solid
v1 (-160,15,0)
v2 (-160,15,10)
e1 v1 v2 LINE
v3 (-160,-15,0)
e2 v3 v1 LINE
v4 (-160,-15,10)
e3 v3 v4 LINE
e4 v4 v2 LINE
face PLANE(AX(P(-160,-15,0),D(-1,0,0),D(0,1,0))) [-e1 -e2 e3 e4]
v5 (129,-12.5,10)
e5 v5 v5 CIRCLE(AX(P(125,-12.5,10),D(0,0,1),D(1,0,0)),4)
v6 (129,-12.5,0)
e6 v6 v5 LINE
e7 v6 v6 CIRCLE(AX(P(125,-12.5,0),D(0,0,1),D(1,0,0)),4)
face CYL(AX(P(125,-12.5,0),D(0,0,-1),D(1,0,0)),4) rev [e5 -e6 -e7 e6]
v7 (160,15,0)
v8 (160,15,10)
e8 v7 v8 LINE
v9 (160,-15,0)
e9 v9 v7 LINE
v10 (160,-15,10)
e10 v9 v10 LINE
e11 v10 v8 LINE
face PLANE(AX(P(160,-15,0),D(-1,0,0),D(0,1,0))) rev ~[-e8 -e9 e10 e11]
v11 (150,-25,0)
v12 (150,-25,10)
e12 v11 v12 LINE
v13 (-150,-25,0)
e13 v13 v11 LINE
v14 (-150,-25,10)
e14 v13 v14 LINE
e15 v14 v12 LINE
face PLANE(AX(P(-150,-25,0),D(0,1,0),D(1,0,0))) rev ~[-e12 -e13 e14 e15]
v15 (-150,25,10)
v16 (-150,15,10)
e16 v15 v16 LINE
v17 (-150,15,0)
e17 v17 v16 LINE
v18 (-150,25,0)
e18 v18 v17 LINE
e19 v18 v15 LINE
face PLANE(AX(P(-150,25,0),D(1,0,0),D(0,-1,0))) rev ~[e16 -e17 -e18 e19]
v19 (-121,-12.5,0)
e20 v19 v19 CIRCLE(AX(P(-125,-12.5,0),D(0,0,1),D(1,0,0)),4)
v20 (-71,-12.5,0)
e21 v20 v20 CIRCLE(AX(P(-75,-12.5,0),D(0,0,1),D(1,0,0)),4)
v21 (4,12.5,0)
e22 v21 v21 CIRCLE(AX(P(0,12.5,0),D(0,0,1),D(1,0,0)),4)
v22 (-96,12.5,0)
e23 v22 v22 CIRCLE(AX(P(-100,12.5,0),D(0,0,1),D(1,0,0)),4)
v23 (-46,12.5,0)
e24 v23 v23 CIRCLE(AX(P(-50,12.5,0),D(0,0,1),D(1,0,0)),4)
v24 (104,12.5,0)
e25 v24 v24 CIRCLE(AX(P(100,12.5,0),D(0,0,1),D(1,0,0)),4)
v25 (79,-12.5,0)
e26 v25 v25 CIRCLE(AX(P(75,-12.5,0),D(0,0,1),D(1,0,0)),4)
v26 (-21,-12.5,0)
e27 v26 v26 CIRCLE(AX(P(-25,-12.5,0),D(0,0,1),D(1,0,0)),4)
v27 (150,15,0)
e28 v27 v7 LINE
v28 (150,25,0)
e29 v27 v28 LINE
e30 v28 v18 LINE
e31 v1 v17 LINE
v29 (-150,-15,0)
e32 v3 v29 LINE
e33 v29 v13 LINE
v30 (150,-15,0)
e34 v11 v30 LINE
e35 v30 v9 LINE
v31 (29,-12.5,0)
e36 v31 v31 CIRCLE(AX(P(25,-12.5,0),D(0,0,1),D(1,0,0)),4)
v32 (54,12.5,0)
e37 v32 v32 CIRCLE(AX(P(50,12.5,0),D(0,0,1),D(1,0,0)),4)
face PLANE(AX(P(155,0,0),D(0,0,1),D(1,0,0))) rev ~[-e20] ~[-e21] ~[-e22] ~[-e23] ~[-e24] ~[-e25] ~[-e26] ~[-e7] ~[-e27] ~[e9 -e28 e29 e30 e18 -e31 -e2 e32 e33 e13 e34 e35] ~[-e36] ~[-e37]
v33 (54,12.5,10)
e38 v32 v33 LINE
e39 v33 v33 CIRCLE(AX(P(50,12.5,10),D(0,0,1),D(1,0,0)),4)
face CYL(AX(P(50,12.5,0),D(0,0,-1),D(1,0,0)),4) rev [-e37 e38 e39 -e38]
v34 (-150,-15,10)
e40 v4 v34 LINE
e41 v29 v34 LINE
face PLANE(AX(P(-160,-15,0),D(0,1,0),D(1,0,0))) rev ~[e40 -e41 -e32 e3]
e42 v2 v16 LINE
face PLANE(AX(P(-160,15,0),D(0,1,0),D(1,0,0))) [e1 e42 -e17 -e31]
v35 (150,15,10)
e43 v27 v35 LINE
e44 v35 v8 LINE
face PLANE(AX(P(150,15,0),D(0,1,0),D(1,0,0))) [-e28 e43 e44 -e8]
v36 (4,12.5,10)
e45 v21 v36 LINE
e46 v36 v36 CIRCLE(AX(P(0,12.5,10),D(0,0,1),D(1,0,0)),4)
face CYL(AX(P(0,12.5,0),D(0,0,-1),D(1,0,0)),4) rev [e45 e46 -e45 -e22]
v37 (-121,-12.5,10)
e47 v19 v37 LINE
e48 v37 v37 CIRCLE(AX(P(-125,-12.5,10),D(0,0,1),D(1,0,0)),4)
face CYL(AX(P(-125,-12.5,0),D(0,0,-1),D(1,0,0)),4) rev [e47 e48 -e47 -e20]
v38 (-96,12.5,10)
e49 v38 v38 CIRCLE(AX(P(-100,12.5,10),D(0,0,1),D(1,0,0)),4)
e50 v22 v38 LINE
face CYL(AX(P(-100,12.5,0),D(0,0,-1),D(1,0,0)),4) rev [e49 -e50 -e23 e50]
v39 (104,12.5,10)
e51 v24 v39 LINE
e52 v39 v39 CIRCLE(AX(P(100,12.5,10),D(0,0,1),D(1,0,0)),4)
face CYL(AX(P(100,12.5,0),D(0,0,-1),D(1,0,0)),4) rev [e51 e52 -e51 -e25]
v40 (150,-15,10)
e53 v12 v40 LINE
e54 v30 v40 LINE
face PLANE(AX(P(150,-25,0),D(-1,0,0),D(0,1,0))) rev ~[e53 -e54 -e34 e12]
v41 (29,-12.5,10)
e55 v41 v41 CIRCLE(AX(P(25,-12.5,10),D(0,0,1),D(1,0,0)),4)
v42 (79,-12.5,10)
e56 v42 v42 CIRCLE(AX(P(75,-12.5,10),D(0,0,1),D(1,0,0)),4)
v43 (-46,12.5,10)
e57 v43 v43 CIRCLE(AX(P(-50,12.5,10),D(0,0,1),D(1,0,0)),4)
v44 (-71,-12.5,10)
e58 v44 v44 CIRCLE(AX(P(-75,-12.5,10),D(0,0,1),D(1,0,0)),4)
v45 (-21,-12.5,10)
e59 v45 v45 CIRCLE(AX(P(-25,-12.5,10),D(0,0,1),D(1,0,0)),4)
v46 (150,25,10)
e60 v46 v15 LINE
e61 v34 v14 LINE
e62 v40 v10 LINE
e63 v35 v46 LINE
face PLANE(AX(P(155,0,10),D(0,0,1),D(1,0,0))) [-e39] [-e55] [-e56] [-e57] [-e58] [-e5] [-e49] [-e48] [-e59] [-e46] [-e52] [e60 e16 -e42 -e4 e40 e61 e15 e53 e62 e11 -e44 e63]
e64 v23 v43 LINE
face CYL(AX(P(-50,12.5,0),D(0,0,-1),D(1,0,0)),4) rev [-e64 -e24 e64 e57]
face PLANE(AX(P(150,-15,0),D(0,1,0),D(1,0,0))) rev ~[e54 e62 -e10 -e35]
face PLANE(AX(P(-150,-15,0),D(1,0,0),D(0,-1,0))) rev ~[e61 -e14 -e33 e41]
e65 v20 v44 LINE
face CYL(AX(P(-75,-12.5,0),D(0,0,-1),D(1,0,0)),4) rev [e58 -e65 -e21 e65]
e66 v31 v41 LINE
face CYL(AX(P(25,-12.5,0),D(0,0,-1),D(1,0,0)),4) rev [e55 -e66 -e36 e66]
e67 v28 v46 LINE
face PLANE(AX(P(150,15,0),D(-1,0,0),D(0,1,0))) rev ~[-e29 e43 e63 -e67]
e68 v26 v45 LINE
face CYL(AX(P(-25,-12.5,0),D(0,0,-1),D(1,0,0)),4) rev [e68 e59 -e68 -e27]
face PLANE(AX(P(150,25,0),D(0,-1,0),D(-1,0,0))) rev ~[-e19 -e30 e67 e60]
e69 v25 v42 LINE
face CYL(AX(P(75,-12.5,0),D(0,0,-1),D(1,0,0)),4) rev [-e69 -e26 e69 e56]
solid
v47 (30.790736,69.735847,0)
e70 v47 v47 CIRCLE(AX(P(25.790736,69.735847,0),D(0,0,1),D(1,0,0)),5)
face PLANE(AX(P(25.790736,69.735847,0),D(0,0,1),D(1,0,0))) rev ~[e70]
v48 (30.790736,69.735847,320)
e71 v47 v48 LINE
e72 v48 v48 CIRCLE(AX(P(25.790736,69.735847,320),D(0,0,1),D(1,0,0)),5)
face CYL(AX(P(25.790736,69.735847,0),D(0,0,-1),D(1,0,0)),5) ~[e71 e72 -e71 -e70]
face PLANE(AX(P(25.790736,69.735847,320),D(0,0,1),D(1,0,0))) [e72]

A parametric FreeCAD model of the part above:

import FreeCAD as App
import Part
import Sketcher

V = App.Vector

doc = App.newDocument("Part")
params = doc.addObject("Spreadsheet::Sheet", "Params")
for row, (alias, value) in enumerate([
    ("sketch1_diameter", "8 mm"),
    ("sketch1_width", "10 mm"),
    ("sketch1_width2", "300 mm"),
    ("sketch1_height", "30 mm"),
    ("pad1_length", "10 mm"),
    ("sketch2_diameter", "10 mm"),
    ("pad2_length", "320 mm"),
], start=1):
    params.set(f"A{row}", alias)
    params.set(f"B{row}", "=" + value)
    params.setAlias(f"B{row}", alias)

body = doc.addObject("PartDesign::Body", "Body")

# Sketch on XY plane
sketch1 = doc.addObject("Sketcher::SketchObject", "Sketch")
body.addObject(sketch1)
sketch1.AttachmentSupport = (doc.XY_Plane, [""])
sketch1.MapMode = "FlatFace"
sketch1.addGeometry([
    Part.LineSegment(V(150, -15, 0), V(160, -15, 0)),  # 0
    Part.LineSegment(V(160, -15, 0), V(160, 15, 0)),  # 1
    Part.LineSegment(V(160, 15, 0), V(150, 15, 0)),  # 2
    Part.LineSegment(V(150, 15, 0), V(150, 25, 0)),  # 3
    Part.LineSegment(V(150, 25, 0), V(-150, 25, 0)),  # 4
    Part.LineSegment(V(-150, 25, 0), V(-150, 15, 0)),  # 5
    Part.LineSegment(V(-150, 15, 0), V(-160, 15, 0)),  # 6
    Part.LineSegment(V(-160, 15, 0), V(-160, -15, 0)),  # 7
    Part.LineSegment(V(-160, -15, 0), V(-150, -15, 0)),  # 8
    Part.LineSegment(V(-150, -15, 0), V(-150, -25, 0)),  # 9
    Part.LineSegment(V(-150, -25, 0), V(150, -25, 0)),  # 10
    Part.LineSegment(V(150, -25, 0), V(150, -15, 0)),  # 11
    Part.Circle(V(-125, -12.5, 0), V(0, 0, 1), 4),  # 12
    Part.Circle(V(-75, -12.5, 0), V(0, 0, 1), 4),  # 13
    Part.Circle(V(-25, -12.5, 0), V(0, 0, 1), 4),  # 14
    Part.Circle(V(25, -12.5, 0), V(0, 0, 1), 4),  # 15
    Part.Circle(V(75, -12.5, 0), V(0, 0, 1), 4),  # 16
    Part.Circle(V(125, -12.5, 0), V(0, 0, 1), 4),  # 17
    Part.Circle(V(-100, 12.5, 0), V(0, 0, 1), 4),  # 18
    Part.Circle(V(-50, 12.5, 0), V(0, 0, 1), 4),  # 19
    Part.Circle(V(0, 12.5, 0), V(0, 0, 1), 4),  # 20
    Part.Circle(V(50, 12.5, 0), V(0, 0, 1), 4),  # 21
    Part.Circle(V(100, 12.5, 0), V(0, 0, 1), 4),  # 22
], False)
sketch1.addConstraint([
    Sketcher.Constraint("Coincident", 0, 2, 1, 1),
    Sketcher.Constraint("Coincident", 1, 2, 2, 1),
    Sketcher.Constraint("Coincident", 2, 2, 3, 1),
    Sketcher.Constraint("Coincident", 3, 2, 4, 1),
    Sketcher.Constraint("Coincident", 4, 2, 5, 1),
    Sketcher.Constraint("Coincident", 5, 2, 6, 1),
    Sketcher.Constraint("Coincident", 6, 2, 7, 1),
    Sketcher.Constraint("Coincident", 7, 2, 8, 1),
    Sketcher.Constraint("Coincident", 8, 2, 9, 1),
    Sketcher.Constraint("Coincident", 9, 2, 10, 1),
    Sketcher.Constraint("Coincident", 10, 2, 11, 1),
    Sketcher.Constraint("Coincident", 11, 2, 0, 1),
    Sketcher.Constraint("Horizontal", 0),
    Sketcher.Constraint("Vertical", 1),
    Sketcher.Constraint("Horizontal", 2),
    Sketcher.Constraint("Vertical", 3),
    Sketcher.Constraint("Horizontal", 4),
    Sketcher.Constraint("Vertical", 5),
    Sketcher.Constraint("Horizontal", 6),
    Sketcher.Constraint("Vertical", 7),
    Sketcher.Constraint("Horizontal", 8),
    Sketcher.Constraint("Vertical", 9),
    Sketcher.Constraint("Horizontal", 10),
    Sketcher.Constraint("Vertical", 11),
    Sketcher.Constraint("Equal", 12, 13),
    Sketcher.Constraint("Equal", 13, 14),
    Sketcher.Constraint("Equal", 14, 15),
    Sketcher.Constraint("Equal", 15, 16),
    Sketcher.Constraint("Equal", 16, 17),
    Sketcher.Constraint("Equal", 17, 18),
    Sketcher.Constraint("Equal", 18, 19),
    Sketcher.Constraint("Equal", 19, 20),
    Sketcher.Constraint("Equal", 20, 21),
    Sketcher.Constraint("Equal", 21, 22),
    Sketcher.Constraint("Symmetric", 0, 2, 6, 2, -1, 1),
    Sketcher.Constraint("Symmetric", 2, 2, 8, 2, -1, 1),
    Sketcher.Constraint("Symmetric", 4, 2, 10, 2, -1, 1),
    Sketcher.Constraint("Symmetric", 14, 3, 15, 3, -2),
    Sketcher.Constraint("Symmetric", 13, 3, 16, 3, -2),
    Sketcher.Constraint("Symmetric", 12, 3, 17, 3, -2),
    Sketcher.Constraint("Symmetric", 19, 3, 21, 3, -2),
    Sketcher.Constraint("Symmetric", 18, 3, 22, 3, -2),
    Sketcher.Constraint("Symmetric", 2, 2, 5, 2, -2),
    Sketcher.Constraint("PointOnObject", 20, 3, -2),
    Sketcher.Constraint("Horizontal", 12, 3, 13, 3),
    Sketcher.Constraint("Horizontal", 13, 3, 14, 3),
    Sketcher.Constraint("Horizontal", 18, 3, 19, 3),
    Sketcher.Constraint("Horizontal", 19, 3, 20, 3),
    Sketcher.Constraint("Equal", 8, 3),
    Sketcher.Constraint("Diameter", 12, 8.0),
    Sketcher.Constraint("DistanceX", 0, 1, 0, 2, 10.0),
    Sketcher.Constraint("DistanceX", 4, 2, 4, 1, 300.0),
    Sketcher.Constraint("DistanceY", 1, 1, 1, 2, 30.0),
    Sketcher.Constraint("DistanceX", 12, 3, -1, 1, 125.0),
    Sketcher.Constraint("DistanceX", 13, 3, -1, 1, 75.0),
    Sketcher.Constraint("DistanceX", 14, 3, -1, 1, 25.0),
    Sketcher.Constraint("DistanceX", 18, 3, -1, 1, 100.0),
    Sketcher.Constraint("DistanceX", 19, 3, -1, 1, 50.0),
    Sketcher.Constraint("DistanceY", 12, 3, 18, 3, 25.0),
    Sketcher.Constraint("DistanceY", 12, 3, -1, 1, 12.5),
])
sketch1.setExpression("Constraints[49]", "Params.sketch1_diameter")
sketch1.setExpression("Constraints[50]", "Params.sketch1_width")
sketch1.setExpression("Constraints[51]", "Params.sketch1_width2")
sketch1.setExpression("Constraints[52]", "Params.sketch1_height")
pad1 = doc.addObject("PartDesign::Pad", "Pad")
body.addObject(pad1)
pad1.Profile = sketch1
pad1.setExpression("Length", "Params.pad1_length")
body2 = doc.addObject("PartDesign::Body", "Body001")

# Sketch on XY plane
sketch2 = doc.addObject("Sketcher::SketchObject", "Sketch001")
body2.addObject(sketch2)
sketch2.AttachmentSupport = (doc.getObject("XY_Plane001"), [""])
sketch2.MapMode = "FlatFace"
sketch2.addGeometry(Part.Circle(V(26, 70, 0), V(0, 0, 1), 5), False)
sketch2.addConstraint([
    Sketcher.Constraint("Diameter", 0, 10.0),
    Sketcher.Constraint("DistanceX", -1, 1, 0, 3, 25.790736),
    Sketcher.Constraint("DistanceY", -1, 1, 0, 3, 69.735847),
])
sketch2.setExpression("Constraints[0]", "Params.sketch2_diameter")
pad2 = doc.addObject("PartDesign::Pad", "Pad001")
body2.addObject(pad2)
pad2.Profile = sketch2
pad2.setExpression("Length", "Params.pad2_length")

doc.recompute()
